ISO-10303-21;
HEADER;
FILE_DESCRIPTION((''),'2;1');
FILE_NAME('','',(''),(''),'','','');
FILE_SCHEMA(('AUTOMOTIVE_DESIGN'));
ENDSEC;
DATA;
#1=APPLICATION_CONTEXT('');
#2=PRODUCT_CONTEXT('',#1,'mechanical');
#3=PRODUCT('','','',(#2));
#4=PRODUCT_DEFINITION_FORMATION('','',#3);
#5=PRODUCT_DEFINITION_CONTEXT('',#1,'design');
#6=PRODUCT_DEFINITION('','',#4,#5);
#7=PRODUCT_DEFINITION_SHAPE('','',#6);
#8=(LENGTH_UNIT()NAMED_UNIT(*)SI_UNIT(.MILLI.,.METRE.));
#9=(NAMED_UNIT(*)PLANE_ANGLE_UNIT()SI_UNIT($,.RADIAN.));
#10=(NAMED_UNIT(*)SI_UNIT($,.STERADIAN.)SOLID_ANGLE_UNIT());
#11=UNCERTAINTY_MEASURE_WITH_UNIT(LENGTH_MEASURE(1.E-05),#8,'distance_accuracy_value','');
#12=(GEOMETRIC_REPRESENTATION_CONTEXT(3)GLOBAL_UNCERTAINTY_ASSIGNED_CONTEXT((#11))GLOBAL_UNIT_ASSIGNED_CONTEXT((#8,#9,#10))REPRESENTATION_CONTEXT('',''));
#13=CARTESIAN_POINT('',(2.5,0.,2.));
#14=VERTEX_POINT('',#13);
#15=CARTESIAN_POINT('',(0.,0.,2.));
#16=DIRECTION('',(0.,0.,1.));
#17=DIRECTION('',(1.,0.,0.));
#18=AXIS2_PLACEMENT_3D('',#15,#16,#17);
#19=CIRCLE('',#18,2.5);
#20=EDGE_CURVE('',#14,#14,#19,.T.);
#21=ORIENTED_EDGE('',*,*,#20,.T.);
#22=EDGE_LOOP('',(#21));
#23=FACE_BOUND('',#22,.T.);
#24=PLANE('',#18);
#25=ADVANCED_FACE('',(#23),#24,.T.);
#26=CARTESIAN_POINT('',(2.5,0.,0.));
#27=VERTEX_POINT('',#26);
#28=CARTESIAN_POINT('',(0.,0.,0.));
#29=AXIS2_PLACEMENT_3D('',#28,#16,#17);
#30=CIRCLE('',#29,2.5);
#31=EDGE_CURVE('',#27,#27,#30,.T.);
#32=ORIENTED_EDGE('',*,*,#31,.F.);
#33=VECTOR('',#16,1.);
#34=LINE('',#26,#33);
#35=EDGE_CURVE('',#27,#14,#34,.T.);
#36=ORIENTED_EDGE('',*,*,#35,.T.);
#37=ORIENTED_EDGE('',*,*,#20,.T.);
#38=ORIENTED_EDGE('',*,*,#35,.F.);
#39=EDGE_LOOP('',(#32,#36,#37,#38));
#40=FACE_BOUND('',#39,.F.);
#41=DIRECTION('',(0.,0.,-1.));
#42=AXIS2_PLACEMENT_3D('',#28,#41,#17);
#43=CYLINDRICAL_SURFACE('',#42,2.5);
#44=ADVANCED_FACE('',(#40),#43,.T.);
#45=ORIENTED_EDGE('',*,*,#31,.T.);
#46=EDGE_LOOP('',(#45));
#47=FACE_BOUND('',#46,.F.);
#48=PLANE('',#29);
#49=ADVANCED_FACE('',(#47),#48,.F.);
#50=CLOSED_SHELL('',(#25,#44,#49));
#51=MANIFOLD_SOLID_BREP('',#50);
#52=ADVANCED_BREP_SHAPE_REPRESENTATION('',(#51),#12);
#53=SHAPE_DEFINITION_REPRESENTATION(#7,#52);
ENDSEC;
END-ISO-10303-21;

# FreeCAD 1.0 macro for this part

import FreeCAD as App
import Part
import Sketcher

V = App.Vector

doc = App.newDocument("Part")
params = doc.addObject("Spreadsheet::Sheet", "Params")
for row, (alias, value) in enumerate([
    ("sketch1_diameter", "5 mm"),
    ("pad1_length", "2 mm"),
], start=1):
    params.set(f"A{row}", alias)
    params.set(f"B{row}", "=" + value)
    params.setAlias(f"B{row}", alias)

body = doc.addObject("PartDesign::Body", "Body")

sketch1 = body.newObject("Sketcher::SketchObject", "Sketch")
sketch1.AttachmentSupport = (doc.getObject("XY_Plane"), [""])
sketch1.MapMode = "FlatFace"
sketch1.addGeometry(Part.Circle(V(0, 0, 0), V(0, 0, 1), 2.5), False)
sketch1.addConstraint([
    Sketcher.Constraint("Coincident", 0, 3, -1, 1),
    Sketcher.Constraint("Diameter", 0, 5.0),
])
sketch1.setExpression("Constraints[1]", "Params.sketch1_diameter")
pad1 = body.newObject("PartDesign::Pad", "Pad")
pad1.Profile = sketch1
pad1.setExpression("Length", "Params.pad1_length")

doc.recompute()
